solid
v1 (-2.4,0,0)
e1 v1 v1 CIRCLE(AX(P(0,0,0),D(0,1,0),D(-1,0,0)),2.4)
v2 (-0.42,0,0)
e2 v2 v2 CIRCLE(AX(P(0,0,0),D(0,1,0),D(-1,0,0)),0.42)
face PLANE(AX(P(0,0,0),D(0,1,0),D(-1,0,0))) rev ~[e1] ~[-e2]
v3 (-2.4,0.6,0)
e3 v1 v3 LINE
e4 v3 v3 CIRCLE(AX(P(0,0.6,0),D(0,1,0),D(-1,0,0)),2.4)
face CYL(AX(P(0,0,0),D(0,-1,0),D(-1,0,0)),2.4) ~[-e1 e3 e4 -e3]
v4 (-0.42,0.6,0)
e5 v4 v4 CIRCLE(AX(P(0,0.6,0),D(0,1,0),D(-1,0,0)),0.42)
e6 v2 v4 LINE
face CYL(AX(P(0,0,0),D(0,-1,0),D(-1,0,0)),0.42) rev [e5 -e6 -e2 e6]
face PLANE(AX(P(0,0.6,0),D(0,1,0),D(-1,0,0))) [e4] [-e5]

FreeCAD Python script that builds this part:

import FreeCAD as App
import Part
import Sketcher

doc = App.newDocument("Part")
body = doc.addObject("PartDesign::Body", "Body")

sketch1 = body.newObject("Sketcher::SketchObject", "Sketch")
sketch1.AttachmentSupport = (doc.getObject("XZ_Plane"), [""])
sketch1.MapMode = "FlatFace"
sketch1.addGeometry([
    Part.Circle(App.Vector(0, 0, 0), App.Vector(0, 0, 1), 2.4),
    Part.Circle(App.Vector(0, 0, 0), App.Vector(0, 0, 1), 0.42),
], False)
sketch1.addConstraint([
    Sketcher.Constraint("Coincident", 0, 3, -1, 1),
    Sketcher.Constraint("Coincident", 1, 3, -1, 1),
    Sketcher.Constraint("Diameter", 0, 4.8),
    Sketcher.Constraint("Diameter", 1, 0.84),
])
pad1 = body.newObject("PartDesign::Pad", "Pad")
pad1.Profile = sketch1
pad1.Length = 0.6
pad1.Reversed = True

doc.recompute()
